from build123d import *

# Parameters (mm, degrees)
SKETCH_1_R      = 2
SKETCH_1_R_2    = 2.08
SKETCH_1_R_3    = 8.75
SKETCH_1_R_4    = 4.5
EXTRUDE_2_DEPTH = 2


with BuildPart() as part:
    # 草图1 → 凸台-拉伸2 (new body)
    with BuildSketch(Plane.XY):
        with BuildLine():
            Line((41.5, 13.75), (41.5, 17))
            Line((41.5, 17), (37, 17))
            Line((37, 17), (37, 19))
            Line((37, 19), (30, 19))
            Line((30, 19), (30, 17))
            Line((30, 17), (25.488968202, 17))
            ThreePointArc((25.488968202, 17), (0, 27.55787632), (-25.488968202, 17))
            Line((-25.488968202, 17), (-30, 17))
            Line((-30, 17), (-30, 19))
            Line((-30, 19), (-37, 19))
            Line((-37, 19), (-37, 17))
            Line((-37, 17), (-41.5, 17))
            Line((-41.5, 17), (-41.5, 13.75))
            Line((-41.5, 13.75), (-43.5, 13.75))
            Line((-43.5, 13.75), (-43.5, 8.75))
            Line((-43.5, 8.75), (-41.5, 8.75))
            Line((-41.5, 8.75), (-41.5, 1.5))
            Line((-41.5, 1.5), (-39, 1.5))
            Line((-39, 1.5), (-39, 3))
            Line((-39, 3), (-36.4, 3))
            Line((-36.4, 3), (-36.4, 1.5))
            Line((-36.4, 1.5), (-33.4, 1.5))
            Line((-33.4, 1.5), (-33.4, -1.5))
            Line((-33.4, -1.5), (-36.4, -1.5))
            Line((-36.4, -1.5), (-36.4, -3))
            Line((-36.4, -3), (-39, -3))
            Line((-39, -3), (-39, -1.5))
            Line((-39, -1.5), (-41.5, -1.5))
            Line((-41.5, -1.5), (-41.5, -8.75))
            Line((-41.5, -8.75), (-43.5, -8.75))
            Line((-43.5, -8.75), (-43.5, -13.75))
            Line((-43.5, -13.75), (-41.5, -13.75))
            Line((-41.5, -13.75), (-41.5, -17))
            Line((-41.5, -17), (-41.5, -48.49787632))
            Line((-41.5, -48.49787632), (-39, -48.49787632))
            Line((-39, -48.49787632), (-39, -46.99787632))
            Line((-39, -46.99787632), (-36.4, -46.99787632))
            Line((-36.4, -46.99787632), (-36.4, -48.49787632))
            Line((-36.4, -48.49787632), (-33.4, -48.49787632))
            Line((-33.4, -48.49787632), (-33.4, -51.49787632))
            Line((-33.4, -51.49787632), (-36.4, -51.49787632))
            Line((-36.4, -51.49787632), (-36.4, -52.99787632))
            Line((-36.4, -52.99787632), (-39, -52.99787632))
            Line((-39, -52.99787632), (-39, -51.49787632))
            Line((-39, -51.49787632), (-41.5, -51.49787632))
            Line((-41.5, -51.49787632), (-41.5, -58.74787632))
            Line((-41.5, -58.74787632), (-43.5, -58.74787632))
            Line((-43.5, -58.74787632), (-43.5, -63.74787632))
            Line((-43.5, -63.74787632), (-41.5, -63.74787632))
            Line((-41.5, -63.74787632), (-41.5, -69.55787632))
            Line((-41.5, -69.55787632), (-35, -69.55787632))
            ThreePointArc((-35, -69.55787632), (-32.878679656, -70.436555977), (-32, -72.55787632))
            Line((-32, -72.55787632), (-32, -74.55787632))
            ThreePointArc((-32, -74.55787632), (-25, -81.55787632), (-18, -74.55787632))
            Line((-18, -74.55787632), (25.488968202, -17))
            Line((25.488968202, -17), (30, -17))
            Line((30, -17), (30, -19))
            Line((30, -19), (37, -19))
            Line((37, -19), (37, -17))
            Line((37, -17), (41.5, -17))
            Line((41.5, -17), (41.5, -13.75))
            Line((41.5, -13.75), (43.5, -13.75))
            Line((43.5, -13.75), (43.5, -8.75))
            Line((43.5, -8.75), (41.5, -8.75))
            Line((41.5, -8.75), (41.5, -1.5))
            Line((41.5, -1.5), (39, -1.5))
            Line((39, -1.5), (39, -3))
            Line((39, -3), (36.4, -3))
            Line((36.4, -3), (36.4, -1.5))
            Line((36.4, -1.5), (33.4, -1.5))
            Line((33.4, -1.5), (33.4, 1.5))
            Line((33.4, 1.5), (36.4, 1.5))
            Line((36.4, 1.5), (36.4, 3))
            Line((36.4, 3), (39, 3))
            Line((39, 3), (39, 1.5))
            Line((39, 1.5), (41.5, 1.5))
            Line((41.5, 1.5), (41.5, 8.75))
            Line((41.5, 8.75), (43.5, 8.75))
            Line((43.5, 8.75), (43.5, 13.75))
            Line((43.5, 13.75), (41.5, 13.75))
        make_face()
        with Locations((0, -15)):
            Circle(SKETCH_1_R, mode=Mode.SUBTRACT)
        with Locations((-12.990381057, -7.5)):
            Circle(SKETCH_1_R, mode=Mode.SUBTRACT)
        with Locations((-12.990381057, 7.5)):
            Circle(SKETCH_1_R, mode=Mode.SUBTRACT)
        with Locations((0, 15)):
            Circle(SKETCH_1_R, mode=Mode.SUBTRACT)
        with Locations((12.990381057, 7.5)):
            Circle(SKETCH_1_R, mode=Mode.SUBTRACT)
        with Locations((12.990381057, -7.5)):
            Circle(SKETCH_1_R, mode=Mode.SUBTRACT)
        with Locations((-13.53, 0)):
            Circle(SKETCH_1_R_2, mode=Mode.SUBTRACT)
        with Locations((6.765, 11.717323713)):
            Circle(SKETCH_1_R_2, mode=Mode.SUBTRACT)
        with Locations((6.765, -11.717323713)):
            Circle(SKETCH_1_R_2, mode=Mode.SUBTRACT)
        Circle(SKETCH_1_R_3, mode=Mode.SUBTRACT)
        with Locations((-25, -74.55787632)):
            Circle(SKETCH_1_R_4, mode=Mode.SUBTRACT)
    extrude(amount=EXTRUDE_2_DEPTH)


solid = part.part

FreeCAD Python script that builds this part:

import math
import FreeCAD as App
import Part
import Sketcher

doc = App.newDocument("Part")
body = doc.addObject("PartDesign::Body", "Body")

# Sketch on XY plane
sketch1 = body.newObject("Sketcher::SketchObject", "Sketch")
sketch1.AttachmentSupport = (doc.getObject("XY_Plane"), [""])
sketch1.MapMode = "FlatFace"
sketch1.addGeometry([
    Part.LineSegment(App.Vector(41.5, 13.75, 0), App.Vector(41.5, 17, 0)),  # 0
    Part.LineSegment(App.Vector(41.5, 17, 0), App.Vector(37, 17, 0)),  # 1
    Part.LineSegment(App.Vector(37, 17, 0), App.Vector(37, 19, 0)),  # 2
    Part.LineSegment(App.Vector(37, 19, 0), App.Vector(30, 19, 0)),  # 3
    Part.LineSegment(App.Vector(30, 19, 0), App.Vector(30, 17, 0)),  # 4
    Part.LineSegment(App.Vector(30, 17, 0), App.Vector(25.488968, 17, 0)),  # 5
    Part.ArcOfCircle(Part.Circle(App.Vector(0, -8.488968, 0), App.Vector(0, 0, 1), 36.046845), math.radians(45), math.radians(135)),  # 6
    Part.LineSegment(App.Vector(-25.488968, 17, 0), App.Vector(-30, 17, 0)),  # 7
    Part.LineSegment(App.Vector(-30, 17, 0), App.Vector(-30, 19, 0)),  # 8
    Part.LineSegment(App.Vector(-30, 19, 0), App.Vector(-37, 19, 0)),  # 9
    Part.LineSegment(App.Vector(-37, 19, 0), App.Vector(-37, 17, 0)),  # 10
    Part.LineSegment(App.Vector(-37, 17, 0), App.Vector(-41.5, 17, 0)),  # 11
    Part.LineSegment(App.Vector(-41.5, 17, 0), App.Vector(-41.5, 13.75, 0)),  # 12
    Part.LineSegment(App.Vector(-41.5, 13.75, 0), App.Vector(-43.5, 13.75, 0)),  # 13
    Part.LineSegment(App.Vector(-43.5, 13.75, 0), App.Vector(-43.5, 8.75, 0)),  # 14
    Part.LineSegment(App.Vector(-43.5, 8.75, 0), App.Vector(-41.5, 8.75, 0)),  # 15
    Part.LineSegment(App.Vector(-41.5, 8.75, 0), App.Vector(-41.5, 1.5, 0)),  # 16
    Part.LineSegment(App.Vector(-41.5, 1.5, 0), App.Vector(-39, 1.5, 0)),  # 17
    Part.LineSegment(App.Vector(-39, 1.5, 0), App.Vector(-39, 3, 0)),  # 18
    Part.LineSegment(App.Vector(-39, 3, 0), App.Vector(-36.4, 3, 0)),  # 19
    Part.LineSegment(App.Vector(-36.4, 3, 0), App.Vector(-36.4, 1.5, 0)),  # 20
    Part.LineSegment(App.Vector(-36.4, 1.5, 0), App.Vector(-33.4, 1.5, 0)),  # 21
    Part.LineSegment(App.Vector(-33.4, 1.5, 0), App.Vector(-33.4, -1.5, 0)),  # 22
    Part.LineSegment(App.Vector(-33.4, -1.5, 0), App.Vector(-36.4, -1.5, 0)),  # 23
    Part.LineSegment(App.Vector(-36.4, -1.5, 0), App.Vector(-36.4, -3, 0)),  # 24
    Part.LineSegment(App.Vector(-36.4, -3, 0), App.Vector(-39, -3, 0)),  # 25
    Part.LineSegment(App.Vector(-39, -3, 0), App.Vector(-39, -1.5, 0)),  # 26
    Part.LineSegment(App.Vector(-39, -1.5, 0), App.Vector(-41.5, -1.5, 0)),  # 27
    Part.LineSegment(App.Vector(-41.5, -1.5, 0), App.Vector(-41.5, -8.75, 0)),  # 28
    Part.LineSegment(App.Vector(-41.5, -8.75, 0), App.Vector(-43.5, -8.75, 0)),  # 29
    Part.LineSegment(App.Vector(-43.5, -8.75, 0), App.Vector(-43.5, -13.75, 0)),  # 30
    Part.LineSegment(App.Vector(-43.5, -13.75, 0), App.Vector(-41.5, -13.75, 0)),  # 31
    Part.LineSegment(App.Vector(-41.5, -13.75, 0), App.Vector(-41.5, -48.497876, 0)),  # 32
    Part.LineSegment(App.Vector(-41.5, -48.497876, 0), App.Vector(-39, -48.497876, 0)),  # 33
    Part.LineSegment(App.Vector(-39, -48.497876, 0), App.Vector(-39, -46.997876, 0)),  # 34
    Part.LineSegment(App.Vector(-39, -46.997876, 0), App.Vector(-36.4, -46.997876, 0)),  # 35
    Part.LineSegment(App.Vector(-36.4, -46.997876, 0), App.Vector(-36.4, -48.497876, 0)),  # 36
    Part.LineSegment(App.Vector(-36.4, -48.497876, 0), App.Vector(-33.4, -48.497876, 0)),  # 37
    Part.LineSegment(App.Vector(-33.4, -48.497876, 0), App.Vector(-33.4, -51.497876, 0)),  # 38
    Part.LineSegment(App.Vector(-33.4, -51.497876, 0), App.Vector(-36.4, -51.497876, 0)),  # 39
    Part.LineSegment(App.Vector(-36.4, -51.497876, 0), App.Vector(-36.4, -52.997876, 0)),  # 40
    Part.LineSegment(App.Vector(-36.4, -52.997876, 0), App.Vector(-39, -52.997876, 0)),  # 41
    Part.LineSegment(App.Vector(-39, -52.997876, 0), App.Vector(-39, -51.497876, 0)),  # 42
    Part.LineSegment(App.Vector(-39, -51.497876, 0), App.Vector(-41.5, -51.497876, 0)),  # 43
    Part.LineSegment(App.Vector(-41.5, -51.497876, 0), App.Vector(-41.5, -58.747876, 0)),  # 44
    Part.LineSegment(App.Vector(-41.5, -58.747876, 0), App.Vector(-43.5, -58.747876, 0)),  # 45
    Part.LineSegment(App.Vector(-43.5, -58.747876, 0), App.Vector(-43.5, -63.747876, 0)),  # 46
    Part.LineSegment(App.Vector(-43.5, -63.747876, 0), App.Vector(-41.5, -63.747876, 0)),  # 47
    Part.LineSegment(App.Vector(-41.5, -63.747876, 0), App.Vector(-41.5, -69.557876, 0)),  # 48
    Part.LineSegment(App.Vector(-41.5, -69.557876, 0), App.Vector(-35, -69.557876, 0)),  # 49
    Part.ArcOfCircle(Part.Circle(App.Vector(-35, -72.557876, 0), App.Vector(0, 0, 1), 3), math.radians(0), math.radians(90)),  # 50
    Part.LineSegment(App.Vector(-32, -72.557876, 0), App.Vector(-32, -74.557876, 0)),  # 51
    Part.ArcOfCircle(Part.Circle(App.Vector(-25, -74.557876, 0), App.Vector(0, 0, 1), 7), math.radians(180), math.radians(360)),  # 52
    Part.LineSegment(App.Vector(-18, -74.557876, 0), App.Vector(25.488968, -17, 0)),  # 53
    Part.LineSegment(App.Vector(25.488968, -17, 0), App.Vector(30, -17, 0)),  # 54
    Part.LineSegment(App.Vector(30, -17, 0), App.Vector(30, -19, 0)),  # 55
    Part.LineSegment(App.Vector(30, -19, 0), App.Vector(37, -19, 0)),  # 56
    Part.LineSegment(App.Vector(37, -19, 0), App.Vector(37, -17, 0)),  # 57
    Part.LineSegment(App.Vector(37, -17, 0), App.Vector(41.5, -17, 0)),  # 58
    Part.LineSegment(App.Vector(41.5, -17, 0), App.Vector(41.5, -13.75, 0)),  # 59
    Part.LineSegment(App.Vector(41.5, -13.75, 0), App.Vector(43.5, -13.75, 0)),  # 60
    Part.LineSegment(App.Vector(43.5, -13.75, 0), App.Vector(43.5, -8.75, 0)),  # 61
    Part.LineSegment(App.Vector(43.5, -8.75, 0), App.Vector(41.5, -8.75, 0)),  # 62
    Part.LineSegment(App.Vector(41.5, -8.75, 0), App.Vector(41.5, -1.5, 0)),  # 63
    Part.LineSegment(App.Vector(41.5, -1.5, 0), App.Vector(39, -1.5, 0)),  # 64
    Part.LineSegment(App.Vector(39, -1.5, 0), App.Vector(39, -3, 0)),  # 65
    Part.LineSegment(App.Vector(39, -3, 0), App.Vector(36.4, -3, 0)),  # 66
    Part.LineSegment(App.Vector(36.4, -3, 0), App.Vector(36.4, -1.5, 0)),  # 67
    Part.LineSegment(App.Vector(36.4, -1.5, 0), App.Vector(33.4, -1.5, 0)),  # 68
    Part.LineSegment(App.Vector(33.4, -1.5, 0), App.Vector(33.4, 1.5, 0)),  # 69
    Part.LineSegment(App.Vector(33.4, 1.5, 0), App.Vector(36.4, 1.5, 0)),  # 70
    Part.LineSegment(App.Vector(36.4, 1.5, 0), App.Vector(36.4, 3, 0)),  # 71
    Part.LineSegment(App.Vector(36.4, 3, 0), App.Vector(39, 3, 0)),  # 72
    Part.LineSegment(App.Vector(39, 3, 0), App.Vector(39, 1.5, 0)),  # 73
    Part.LineSegment(App.Vector(39, 1.5, 0), App.Vector(41.5, 1.5, 0)),  # 74
    Part.LineSegment(App.Vector(41.5, 1.5, 0), App.Vector(41.5, 8.75, 0)),  # 75
    Part.LineSegment(App.Vector(41.5, 8.75, 0), App.Vector(43.5, 8.75, 0)),  # 76
    Part.LineSegment(App.Vector(43.5, 8.75, 0), App.Vector(43.5, 13.75, 0)),  # 77
    Part.LineSegment(App.Vector(43.5, 13.75, 0), App.Vector(41.5, 13.75, 0)),  # 78
    Part.Circle(App.Vector(-25, -74.557876, 0), App.Vector(0, 0, 1), 4.5),  # 79
    Part.Circle(App.Vector(-12.990381, -7.5, 0), App.Vector(0, 0, 1), 2),  # 80
    Part.Circle(App.Vector(-13.53, 0, 0), App.Vector(0, 0, 1), 2.08),  # 81
    Part.Circle(App.Vector(-12.990381, 7.5, 0), App.Vector(0, 0, 1), 2),  # 82
    Part.Circle(App.Vector(0, -15, 0), App.Vector(0, 0, 1), 2),  # 83
    Part.Circle(App.Vector(6.765, -11.717324, 0), App.Vector(0, 0, 1), 2.08),  # 84
    Part.Circle(App.Vector(12.990381, -7.5, 0), App.Vector(0, 0, 1), 2),  # 85
    Part.Circle(App.Vector(0, 0, 0), App.Vector(0, 0, 1), 8.75),  # 86
    Part.Circle(App.Vector(0, 15, 0), App.Vector(0, 0, 1), 2),  # 87
    Part.Circle(App.Vector(6.765, 11.717324, 0), App.Vector(0, 0, 1), 2.08),  # 88
    Part.Circle(App.Vector(12.990381, 7.5, 0), App.Vector(0, 0, 1), 2),  # 89
], False)
sketch1.addConstraint([
    Sketcher.Constraint("Coincident", 0, 2, 1, 1),
    Sketcher.Constraint("Coincident", 1, 2, 2, 1),
    Sketcher.Constraint("Coincident", 2, 2, 3, 1),
    Sketcher.Constraint("Coincident", 3, 2, 4, 1),
    Sketcher.Constraint("Coincident", 4, 2, 5, 1),
    Sketcher.Constraint("Coincident", 5, 2, 6, 1),
    Sketcher.Constraint("Coincident", 6, 2, 7, 1),
    Sketcher.Constraint("Coincident", 7, 2, 8, 1),
    Sketcher.Constraint("Coincident", 8, 2, 9, 1),
    Sketcher.Constraint("Coincident", 9, 2, 10, 1),
    Sketcher.Constraint("Coincident", 10, 2, 11, 1),
    Sketcher.Constraint("Coincident", 11, 2, 12, 1),
    Sketcher.Constraint("Coincident", 12, 2, 13, 1),
    Sketcher.Constraint("Coincident", 13, 2, 14, 1),
    Sketcher.Constraint("Coincident", 14, 2, 15, 1),
    Sketcher.Constraint("Coincident", 15, 2, 16, 1),
    Sketcher.Constraint("Coincident", 16, 2, 17, 1),
    Sketcher.Constraint("Coincident", 17, 2, 18, 1),
    Sketcher.Constraint("Coincident", 18, 2, 19, 1),
    Sketcher.Constraint("Coincident", 19, 2, 20, 1),
    Sketcher.Constraint("Coincident", 20, 2, 21, 1),
    Sketcher.Constraint("Coincident", 21, 2, 22, 1),
    Sketcher.Constraint("Coincident", 22, 2, 23, 1),
    Sketcher.Constraint("Coincident", 23, 2, 24, 1),
    Sketcher.Constraint("Coincident", 24, 2, 25, 1),
    Sketcher.Constraint("Coincident", 25, 2, 26, 1),
    Sketcher.Constraint("Coincident", 26, 2, 27, 1),
    Sketcher.Constraint("Coincident", 27, 2, 28, 1),
    Sketcher.Constraint("Coincident", 28, 2, 29, 1),
    Sketcher.Constraint("Coincident", 29, 2, 30, 1),
    Sketcher.Constraint("Coincident", 30, 2, 31, 1),
    Sketcher.Constraint("Coincident", 31, 2, 32, 1),
    Sketcher.Constraint("Coincident", 32, 2, 33, 1),
    Sketcher.Constraint("Coincident", 33, 2, 34, 1),
    Sketcher.Constraint("Coincident", 34, 2, 35, 1),
    Sketcher.Constraint("Coincident", 35, 2, 36, 1),
    Sketcher.Constraint("Coincident", 36, 2, 37, 1),
    Sketcher.Constraint("Coincident", 37, 2, 38, 1),
    Sketcher.Constraint("Coincident", 38, 2, 39, 1),
    Sketcher.Constraint("Coincident", 39, 2, 40, 1),
    Sketcher.Constraint("Coincident", 40, 2, 41, 1),
    Sketcher.Constraint("Coincident", 41, 2, 42, 1),
    Sketcher.Constraint("Coincident", 42, 2, 43, 1),
    Sketcher.Constraint("Coincident", 43, 2, 44, 1),
    Sketcher.Constraint("Coincident", 44, 2, 45, 1),
    Sketcher.Constraint("Coincident", 45, 2, 46, 1),
    Sketcher.Constraint("Coincident", 46, 2, 47, 1),
    Sketcher.Constraint("Coincident", 47, 2, 48, 1),
    Sketcher.Constraint("Coincident", 48, 2, 49, 1),
    Sketcher.Constraint("Tangent", 49, 2, 50, 2),
    Sketcher.Constraint("Tangent", 50, 1, 51, 1),
    Sketcher.Constraint("Tangent", 51, 2, 52, 1),
    Sketcher.Constraint("Coincident", 52, 2, 53, 1),
    Sketcher.Constraint("Coincident", 53, 2, 54, 1),
    Sketcher.Constraint("Coincident", 54, 2, 55, 1),
    Sketcher.Constraint("Coincident", 55, 2, 56, 1),
    Sketcher.Constraint("Coincident", 56, 2, 57, 1),
    Sketcher.Constraint("Coincident", 57, 2, 58, 1),
    Sketcher.Constraint("Coincident", 58, 2, 59, 1),
    Sketcher.Constraint("Coincident", 59, 2, 60, 1),
    Sketcher.Constraint("Coincident", 60, 2, 61, 1),
    Sketcher.Constraint("Coincident", 61, 2, 62, 1),
    Sketcher.Constraint("Coincident", 62, 2, 63, 1),
    Sketcher.Constraint("Coincident", 63, 2, 64, 1),
    Sketcher.Constraint("Coincident", 64, 2, 65, 1),
    Sketcher.Constraint("Coincident", 65, 2, 66, 1),
    Sketcher.Constraint("Coincident", 66, 2, 67, 1),
    Sketcher.Constraint("Coincident", 67, 2, 68, 1),
    Sketcher.Constraint("Coincident", 68, 2, 69, 1),
    Sketcher.Constraint("Coincident", 69, 2, 70, 1),
    Sketcher.Constraint("Coincident", 70, 2, 71, 1),
    Sketcher.Constraint("Coincident", 71, 2, 72, 1),
    Sketcher.Constraint("Coincident", 72, 2, 73, 1),
    Sketcher.Constraint("Coincident", 73, 2, 74, 1),
    Sketcher.Constraint("Coincident", 74, 2, 75, 1),
    Sketcher.Constraint("Coincident", 75, 2, 76, 1),
    Sketcher.Constraint("Coincident", 76, 2, 77, 1),
    Sketcher.Constraint("Coincident", 77, 2, 78, 1),
    Sketcher.Constraint("Coincident", 78, 2, 0, 1),
    Sketcher.Constraint("Vertical", 0),
    Sketcher.Constraint("Horizontal", 1),
    Sketcher.Constraint("Vertical", 2),
    Sketcher.Constraint("Horizontal", 3),
    Sketcher.Constraint("Vertical", 4),
    Sketcher.Constraint("Horizontal", 5),
    Sketcher.Constraint("Horizontal", 7),
    Sketcher.Constraint("Vertical", 8),
    Sketcher.Constraint("Horizontal", 9),
    Sketcher.Constraint("Vertical", 10),
    Sketcher.Constraint("Horizontal", 11),
    Sketcher.Constraint("Vertical", 12),
    Sketcher.Constraint("Horizontal", 13),
    Sketcher.Constraint("Vertical", 14),
    Sketcher.Constraint("Horizontal", 15),
    Sketcher.Constraint("Vertical", 16),
    Sketcher.Constraint("Horizontal", 17),
    Sketcher.Constraint("Vertical", 18),
    Sketcher.Constraint("Horizontal", 19),
    Sketcher.Constraint("Vertical", 20),
    Sketcher.Constraint("Horizontal", 21),
    Sketcher.Constraint("Vertical", 22),
    Sketcher.Constraint("Horizontal", 23),
    Sketcher.Constraint("Vertical", 24),
    Sketcher.Constraint("Horizontal", 25),
    Sketcher.Constraint("Vertical", 26),
    Sketcher.Constraint("Horizontal", 27),
    Sketcher.Constraint("Vertical", 28),
    Sketcher.Constraint("Horizontal", 29),
    Sketcher.Constraint("Vertical", 30),
    Sketcher.Constraint("Horizontal", 31),
    Sketcher.Constraint("Vertical", 32),
    Sketcher.Constraint("Horizontal", 33),
    Sketcher.Constraint("Vertical", 34),
    Sketcher.Constraint("Horizontal", 35),
    Sketcher.Constraint("Vertical", 36),
    Sketcher.Constraint("Horizontal", 37),
    Sketcher.Constraint("Vertical", 38),
    Sketcher.Constraint("Horizontal", 39),
    Sketcher.Constraint("Vertical", 40),
    Sketcher.Constraint("Horizontal", 41),
    Sketcher.Constraint("Vertical", 42),
    Sketcher.Constraint("Horizontal", 43),
    Sketcher.Constraint("Vertical", 44),
    Sketcher.Constraint("Horizontal", 45),
    Sketcher.Constraint("Vertical", 46),
    Sketcher.Constraint("Horizontal", 47),
    Sketcher.Constraint("Vertical", 48),
    Sketcher.Constraint("Horizontal", 49),
    Sketcher.Constraint("Vertical", 51),
    Sketcher.Constraint("Horizontal", 54),
    Sketcher.Constraint("Vertical", 55),
    Sketcher.Constraint("Horizontal", 56),
    Sketcher.Constraint("Vertical", 57),
    Sketcher.Constraint("Horizontal", 58),
    Sketcher.Constraint("Vertical", 59),
    Sketcher.Constraint("Horizontal", 60),
    Sketcher.Constraint("Vertical", 61),
    Sketcher.Constraint("Horizontal", 62),
    Sketcher.Constraint("Vertical", 63),
    Sketcher.Constraint("Horizontal", 64),
    Sketcher.Constraint("Vertical", 65),
    Sketcher.Constraint("Horizontal", 66),
    Sketcher.Constraint("Vertical", 67),
    Sketcher.Constraint("Horizontal", 68),
    Sketcher.Constraint("Vertical", 69),
    Sketcher.Constraint("Horizontal", 70),
    Sketcher.Constraint("Vertical", 71),
    Sketcher.Constraint("Horizontal", 72),
    Sketcher.Constraint("Vertical", 73),
    Sketcher.Constraint("Horizontal", 74),
    Sketcher.Constraint("Vertical", 75),
    Sketcher.Constraint("Horizontal", 76),
    Sketcher.Constraint("Vertical", 77),
    Sketcher.Constraint("Horizontal", 78),
    Sketcher.Constraint("Coincident", 86, 3, -1, 1),
    Sketcher.Constraint("Coincident", 79, 3, 52, 3),
    Sketcher.Constraint("Equal", 80, 82),
    Sketcher.Constraint("Equal", 82, 83),
    Sketcher.Constraint("Equal", 81, 84),
    Sketcher.Constraint("Equal", 83, 85),
    Sketcher.Constraint("Equal", 85, 87),
    Sketcher.Constraint("Equal", 84, 88),
    Sketcher.Constraint("Equal", 87, 89),
    Sketcher.Constraint("Symmetric", 82, 3, 85, 3, -1, 1),
    Sketcher.Constraint("Symmetric", 83, 3, 87, 3, -1, 1),
    Sketcher.Constraint("Symmetric", 80, 3, 89, 3, -1, 1),
    Sketcher.Constraint("Symmetric", 6, 2, 53, 2, -1, 1),
    Sketcher.Constraint("Symmetric", 8, 2, 55, 2, -1, 1),
    Sketcher.Constraint("Symmetric", 10, 2, 57, 2, -1, 1),
    Sketcher.Constraint("Symmetric", 12, 2, 59, 2, -1, 1),
    Sketcher.Constraint("Symmetric", 14, 2, 61, 2, -1, 1),
    Sketcher.Constraint("Symmetric", 16, 2, 63, 2, -1, 1),
    Sketcher.Constraint("Symmetric", 18, 2, 65, 2, -1, 1),
    Sketcher.Constraint("Symmetric", 20, 2, 67, 2, -1, 1),
    Sketcher.Constraint("Symmetric", 22, 2, 69, 2, -1, 1),
    Sketcher.Constraint("Symmetric", 24, 2, 71, 2, -1, 1),
    Sketcher.Constraint("Symmetric", 26, 2, 73, 2, -1, 1),
    Sketcher.Constraint("Symmetric", 28, 2, 75, 2, -1, 1),
    Sketcher.Constraint("Symmetric", 30, 2, 77, 2, -1, 1),
    Sketcher.Constraint("Symmetric", 80, 3, 85, 3, -2),
    Sketcher.Constraint("Symmetric", 5, 2, 6, 2, -2),
    Sketcher.Constraint("Symmetric", 3, 2, 8, 2, -2),
    Sketcher.Constraint("Symmetric", 1, 2, 10, 2, -2),
    Sketcher.Constraint("Symmetric", 31, 2, 59, 2, -2),
    Sketcher.Constraint("Symmetric", 29, 2, 61, 2, -2),
    Sketcher.Constraint("Symmetric", 27, 2, 63, 2, -2),
    Sketcher.Constraint("Symmetric", 25, 2, 65, 2, -2),
    Sketcher.Constraint("Symmetric", 23, 2, 67, 2, -2),
    Sketcher.Constraint("Symmetric", 84, 3, 88, 3, -1),
    Sketcher.Constraint("PointOnObject", 81, 3, -1),
    Sketcher.Constraint("PointOnObject", 83, 3, -2),
    Sketcher.Constraint("Horizontal", 1, 2, 4, 2),
    Sketcher.Constraint("Horizontal", 17, 2, 20, 2),
    Sketcher.Constraint("Horizontal", 33, 2, 36, 2),
    Sketcher.Constraint("Horizontal", 39, 2, 42, 2),
    Sketcher.Constraint("Horizontal", 51, 2, 52, 2),
    Sketcher.Constraint("Vertical", 12, 2, 15, 2),
    Sketcher.Constraint("Vertical", 26, 2, 33, 2),
    Sketcher.Constraint("Vertical", 24, 2, 35, 2),
    Sketcher.Constraint("Vertical", 22, 2, 37, 2),
    Sketcher.Constraint("Vertical", 36, 2, 39, 2),
    Sketcher.Constraint("Vertical", 34, 2, 41, 2),
    Sketcher.Constraint("Vertical", 32, 2, 43, 2),
    Sketcher.Constraint("Vertical", 30, 2, 45, 2),
    Sketcher.Constraint("Vertical", 44, 2, 47, 2),
    Sketcher.Constraint("Vertical", 0, 2, 58, 2),
    Sketcher.Constraint("Equal", 78, 2),
    Sketcher.Constraint("Equal", 70, 22),
    Sketcher.Constraint("Equal", 26, 34),
    Sketcher.Constraint("Equal", 22, 38),
    Sketcher.Constraint("Equal", 36, 40),
    Sketcher.Constraint("Equal", 28, 44),
    Sketcher.Constraint("Equal", 30, 46),
    Sketcher.Constraint("Equal", 10, 51),
    Sketcher.Constraint("Diameter", 79, 9.0),
    Sketcher.Constraint("Diameter", 80, 4.0),
    Sketcher.Constraint("Radius", 50, 3.0),
    Sketcher.Constraint("Radius", 52, 7.0),
    Sketcher.Constraint("Diameter", 86, 17.5),
    Sketcher.Constraint("Diameter", 81, 4.16),
    Sketcher.Constraint("DistanceX", 3, 2, 3, 1, 7.0),
    Sketcher.Constraint("DistanceX", 13, 2, 13, 1, 2.0),
    Sketcher.Constraint("DistanceX", 21, 1, 21, 2, 3.0),
    Sketcher.Constraint("DistanceY", 14, 2, 14, 1, 5.0),
    Sketcher.Constraint("DistanceX", 1, 2, 1, 1, 4.5),
    Sketcher.Constraint("DistanceX", 17, 1, 17, 2, 2.5),
    Sketcher.Constraint("DistanceX", 19, 1, 19, 2, 2.6),
    Sketcher.Constraint("DistanceX", 49, 1, 49, 2, 6.5),
    Sketcher.Constraint("DistanceY", 18, 1, 18, 2, 1.5),
    Sketcher.Constraint("DistanceX", 50, 3, -1, 1, 35.0),
    Sketcher.Constraint("DistanceY", 83, 3, -1, 1, 15.0),
    Sketcher.Constraint("DistanceY", -1, 1, 0, 2, 17.0),
    Sketcher.Constraint("DistanceY", 0, 1, 0, 2, 3.25),
    Sketcher.Constraint("DistanceY", 48, 2, 48, 1, 5.81),
    Sketcher.Constraint("DistanceY", 80, 3, -1, 1, 7.5),
    Sketcher.Constraint("DistanceX", 81, 3, -1, 1, 13.53),
    Sketcher.Constraint("DistanceX", -1, 1, 84, 3, 6.765),
    Sketcher.Constraint("Radius", 6, 36.046845),
    Sketcher.Constraint("DistanceX", 5, 2, 5, 1, 4.511032),
    Sketcher.Constraint("DistanceY", 32, 2, 32, 1, 34.747876),
    Sketcher.Constraint("DistanceX", 80, 3, -1, 1, 12.990381),
    Sketcher.Constraint("DistanceY", 84, 3, -1, 1, 11.717324),
])
pad1 = body.newObject("PartDesign::Pad", "Pad")
pad1.Profile = sketch1
pad1.Length = 2

doc.recompute()
